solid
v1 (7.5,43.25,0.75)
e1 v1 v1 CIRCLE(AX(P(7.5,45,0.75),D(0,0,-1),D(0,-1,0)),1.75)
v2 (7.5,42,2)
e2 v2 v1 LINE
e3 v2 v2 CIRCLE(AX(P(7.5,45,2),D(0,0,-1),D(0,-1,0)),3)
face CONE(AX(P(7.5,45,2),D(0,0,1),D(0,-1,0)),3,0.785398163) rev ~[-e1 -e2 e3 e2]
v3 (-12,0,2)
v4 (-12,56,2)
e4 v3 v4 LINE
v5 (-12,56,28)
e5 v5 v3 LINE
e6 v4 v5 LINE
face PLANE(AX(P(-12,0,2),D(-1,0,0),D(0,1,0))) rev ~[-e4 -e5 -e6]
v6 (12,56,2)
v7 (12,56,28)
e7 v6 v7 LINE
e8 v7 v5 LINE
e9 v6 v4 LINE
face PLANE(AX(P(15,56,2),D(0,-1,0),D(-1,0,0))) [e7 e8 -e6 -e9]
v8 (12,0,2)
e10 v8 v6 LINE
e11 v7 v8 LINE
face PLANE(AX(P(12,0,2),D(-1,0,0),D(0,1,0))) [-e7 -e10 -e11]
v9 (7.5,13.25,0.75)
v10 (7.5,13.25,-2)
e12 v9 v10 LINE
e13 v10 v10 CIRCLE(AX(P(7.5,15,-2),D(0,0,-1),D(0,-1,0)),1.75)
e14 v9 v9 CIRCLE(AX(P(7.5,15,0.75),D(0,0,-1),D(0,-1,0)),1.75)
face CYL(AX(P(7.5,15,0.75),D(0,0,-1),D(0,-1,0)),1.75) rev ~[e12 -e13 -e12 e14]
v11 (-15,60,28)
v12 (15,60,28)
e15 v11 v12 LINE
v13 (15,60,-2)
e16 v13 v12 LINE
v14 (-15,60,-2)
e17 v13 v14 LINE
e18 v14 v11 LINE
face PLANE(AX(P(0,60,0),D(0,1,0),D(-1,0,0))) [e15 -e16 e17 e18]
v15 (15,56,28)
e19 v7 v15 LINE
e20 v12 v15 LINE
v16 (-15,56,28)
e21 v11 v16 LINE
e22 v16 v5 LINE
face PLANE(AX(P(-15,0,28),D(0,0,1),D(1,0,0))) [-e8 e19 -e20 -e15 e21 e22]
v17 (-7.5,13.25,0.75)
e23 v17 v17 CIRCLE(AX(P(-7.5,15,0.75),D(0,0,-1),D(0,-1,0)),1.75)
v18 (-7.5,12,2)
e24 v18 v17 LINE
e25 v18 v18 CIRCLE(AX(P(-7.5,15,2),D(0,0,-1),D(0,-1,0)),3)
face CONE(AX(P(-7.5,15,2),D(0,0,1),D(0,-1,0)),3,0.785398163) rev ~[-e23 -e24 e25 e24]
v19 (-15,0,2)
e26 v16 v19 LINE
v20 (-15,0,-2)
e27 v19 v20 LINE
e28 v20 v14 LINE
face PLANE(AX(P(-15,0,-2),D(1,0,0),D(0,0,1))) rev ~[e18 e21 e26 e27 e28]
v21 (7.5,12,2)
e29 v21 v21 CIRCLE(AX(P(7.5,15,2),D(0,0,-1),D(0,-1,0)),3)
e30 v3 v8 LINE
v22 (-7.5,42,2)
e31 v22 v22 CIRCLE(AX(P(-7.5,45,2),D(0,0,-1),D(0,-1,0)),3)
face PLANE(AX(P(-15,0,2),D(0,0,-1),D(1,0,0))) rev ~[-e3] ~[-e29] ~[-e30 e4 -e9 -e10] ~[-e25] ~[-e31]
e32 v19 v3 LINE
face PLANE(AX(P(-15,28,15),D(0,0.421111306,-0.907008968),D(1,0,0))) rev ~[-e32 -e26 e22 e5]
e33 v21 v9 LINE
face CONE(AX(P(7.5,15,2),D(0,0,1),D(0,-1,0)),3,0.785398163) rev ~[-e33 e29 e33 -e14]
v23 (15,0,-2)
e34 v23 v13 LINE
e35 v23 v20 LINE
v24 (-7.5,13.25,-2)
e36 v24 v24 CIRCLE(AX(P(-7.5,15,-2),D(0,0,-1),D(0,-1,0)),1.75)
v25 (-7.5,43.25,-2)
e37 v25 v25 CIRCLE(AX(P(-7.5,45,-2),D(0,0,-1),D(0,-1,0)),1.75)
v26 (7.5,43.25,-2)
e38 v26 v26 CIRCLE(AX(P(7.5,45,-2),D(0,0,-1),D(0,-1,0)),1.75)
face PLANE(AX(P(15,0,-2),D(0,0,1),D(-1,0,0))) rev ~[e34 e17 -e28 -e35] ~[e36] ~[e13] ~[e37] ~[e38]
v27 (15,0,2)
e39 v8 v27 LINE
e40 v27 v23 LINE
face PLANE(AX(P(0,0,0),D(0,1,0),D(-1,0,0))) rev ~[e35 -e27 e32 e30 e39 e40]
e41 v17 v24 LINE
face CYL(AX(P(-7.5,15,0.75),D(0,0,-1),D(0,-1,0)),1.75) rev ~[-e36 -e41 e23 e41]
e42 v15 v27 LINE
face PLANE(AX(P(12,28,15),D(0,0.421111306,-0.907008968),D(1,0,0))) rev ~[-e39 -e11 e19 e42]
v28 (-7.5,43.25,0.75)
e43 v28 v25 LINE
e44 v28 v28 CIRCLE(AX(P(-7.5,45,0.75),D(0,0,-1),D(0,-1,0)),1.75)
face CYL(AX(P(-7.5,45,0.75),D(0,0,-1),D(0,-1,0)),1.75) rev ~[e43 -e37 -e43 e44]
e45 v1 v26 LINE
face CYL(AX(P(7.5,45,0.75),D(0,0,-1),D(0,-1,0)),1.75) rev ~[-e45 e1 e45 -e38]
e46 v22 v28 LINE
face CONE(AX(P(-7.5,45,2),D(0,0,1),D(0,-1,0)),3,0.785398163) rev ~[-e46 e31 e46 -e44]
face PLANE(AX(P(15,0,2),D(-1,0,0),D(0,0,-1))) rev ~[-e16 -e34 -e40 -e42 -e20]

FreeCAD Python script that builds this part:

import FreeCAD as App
import Part
import Sketcher

V = App.Vector
Q = App.Units.Quantity


def edges_at(feature, points):
    """Names of the edges that pass closest to the given points."""
    edges = feature.Shape.Edges
    near = lambda p: min(range(len(edges)), key=lambda i: edges[i].distToShape(Part.Vertex(*p))[0])
    return sorted({f"Edge{near(p) + 1}" for p in points})


def add_polygon(sketch, points):
    """Adds a closed chain of lines whose ends are joined by coincident constraints."""
    first, n = sketch.GeometryCount, len(points)
    for a, b in zip(points, points[1:] + points[:1]):
        sketch.addGeometry(Part.LineSegment(App.Vector(*a, 0), App.Vector(*b, 0)), False)
    for i in range(n):
        sketch.addConstraint(Sketcher.Constraint("Coincident", first + i, 2, first + (i + 1) % n, 1))

doc = App.newDocument("Part")
body = doc.addObject("PartDesign::Body", "Body")

sketch1 = body.newObject("Sketcher::SketchObject", "Sketch")
sketch1.AttachmentSupport = (doc.getObject("XZ_Plane"), [""])
sketch1.MapMode = "FlatFace"
add_polygon(sketch1, [(15, 2), (15, -2), (-15, -2), (-15, 2)])
sketch1.addConstraint(Sketcher.Constraint("Vertical", 0))
sketch1.addConstraint(Sketcher.Constraint("Horizontal", 1))
sketch1.addConstraint(Sketcher.Constraint("Vertical", 2))
sketch1.addConstraint(Sketcher.Constraint("Horizontal", 3))
sketch1.addConstraint(Sketcher.Constraint("Symmetric", 0, 2, 2, 2, -1, 1))
sketch1.addConstraint(Sketcher.Constraint("DistanceX", 1, 2, 1, 1, Q("30 mm")))
sketch1.addConstraint(Sketcher.Constraint("DistanceY", 0, 2, 0, 1, Q("4 mm")))
pad1 = body.newObject("PartDesign::Pad", "Pad")
pad1.Profile = sketch1
pad1.Length = 60
pad1.Reversed = True

sketch2 = body.newObject("Sketcher::SketchObject", "Sketch001")
sketch2.AttachmentSupport = (doc.getObject("XY_Plane"), [""])
sketch2.MapMode = "FlatFace"
sketch2.AttachmentOffset = App.Placement(V(0, 0, 2), App.Rotation())
add_polygon(sketch2, [(15, 60), (-15, 60), (-15, 56), (15, 56)])
sketch2.addConstraint(Sketcher.Constraint("Horizontal", 0))
sketch2.addConstraint(Sketcher.Constraint("Vertical", 1))
sketch2.addConstraint(Sketcher.Constraint("Horizontal", 2))
sketch2.addConstraint(Sketcher.Constraint("Vertical", 3))
sketch2.addConstraint(Sketcher.Constraint("DistanceY", 1, 2, 1, 1, Q("4 mm")))
sketch2.addConstraint(Sketcher.Constraint("DistanceX", 0, 2, 0, 1, Q("30 mm")))
sketch2.addConstraint(Sketcher.Constraint("DistanceX", 0, 2, -1, 1, Q("15 mm")))
sketch2.addConstraint(Sketcher.Constraint("DistanceY", -1, 1, 0, 2, Q("60 mm")))
pad2 = body.newObject("PartDesign::Pad", "Pad001")
pad2.Profile = sketch2
pad2.Length = 26

sketch3 = body.newObject("Sketcher::SketchObject", "Sketch002")
sketch3.AttachmentSupport = (doc.getObject("XY_Plane"), [""])
sketch3.MapMode = "FlatFace"
sketch3.AttachmentOffset = App.Placement(V(0, 0, 2), App.Rotation())
add_polygon(sketch3, [(-15, 56), (-15, 0), (-12, 0), (-12, 56)])
add_polygon(sketch3, [(12, 56), (12, 0), (15, 0), (15, 56)])
sketch3.addConstraint(Sketcher.Constraint("Vertical", 0))
sketch3.addConstraint(Sketcher.Constraint("Horizontal", 1))
sketch3.addConstraint(Sketcher.Constraint("Vertical", 2))
sketch3.addConstraint(Sketcher.Constraint("Horizontal", 3))
sketch3.addConstraint(Sketcher.Constraint("Vertical", 4))
sketch3.addConstraint(Sketcher.Constraint("Horizontal", 5))
sketch3.addConstraint(Sketcher.Constraint("Vertical", 6))
sketch3.addConstraint(Sketcher.Constraint("Horizontal", 7))
sketch3.addConstraint(Sketcher.Constraint("Symmetric", 1, 2, 4, 2, -1, 1))
sketch3.addConstraint(Sketcher.Constraint("Symmetric", 0, 2, 5, 2, -2))
sketch3.addConstraint(Sketcher.Constraint("Horizontal", 3, 2, 6, 2))
sketch3.addConstraint(Sketcher.Constraint("DistanceX", 1, 1, 1, 2, Q("3 mm")))
sketch3.addConstraint(Sketcher.Constraint("DistanceY", 0, 2, 0, 1, Q("56 mm")))
sketch3.addConstraint(Sketcher.Constraint("DistanceX", 0, 2, -1, 1, Q("15 mm")))
pad3 = body.newObject("PartDesign::Pad", "Pad002")
pad3.Profile = sketch3
pad3.Length = 26
doc.recompute()

chamfer = body.newObject("PartDesign::Chamfer", "Chamfer")
chamfer.Base = (pad3, edges_at(pad3, [(-13.5, 0, 28), (13.5, 0, 28)]))
chamfer.ChamferType = "Two distances"
chamfer.Size = 56
chamfer.Size2 = 26
chamfer.FlipDirection = True

sketch4 = body.newObject("Sketcher::SketchObject", "Sketch003")
sketch4.AttachmentSupport = (doc.getObject("XY_Plane"), [""])
sketch4.MapMode = "FlatFace"
sketch4.AttachmentOffset = App.Placement(V(0, 0, 2), App.Rotation())
sketch4.addGeometry(Part.Circle(V(-7.5, 15, 0), V(0, 0, 1), 1.75), False)
sketch4.addGeometry(Part.Circle(V(7.5, 15, 0), V(0, 0, 1), 1.75), False)
sketch4.addGeometry(Part.Circle(V(7.5, 45, 0), V(0, 0, 1), 1.75), False)
sketch4.addGeometry(Part.Circle(V(-7.5, 45, 0), V(0, 0, 1), 1.75), False)
sketch4.addConstraint(Sketcher.Constraint("Equal", 0, 1))
sketch4.addConstraint(Sketcher.Constraint("Equal", 1, 2))
sketch4.addConstraint(Sketcher.Constraint("Equal", 2, 3))
sketch4.addConstraint(Sketcher.Constraint("Symmetric", 0, 3, 1, 3, -2))
sketch4.addConstraint(Sketcher.Constraint("Symmetric", 2, 3, 3, 3, -2))
sketch4.addConstraint(Sketcher.Constraint("Vertical", 1, 3, 2, 3))
sketch4.addConstraint(Sketcher.Constraint("Diameter", 0, Q("3.5 mm")))
sketch4.addConstraint(Sketcher.Constraint("DistanceY", -1, 1, 0, 3, Q("15 mm")))
sketch4.addConstraint(Sketcher.Constraint("DistanceY", -1, 1, 2, 3, Q("45 mm")))
sketch4.addConstraint(Sketcher.Constraint("DistanceX", 0, 3, 1, 3, Q("15 mm")))
doc.recompute()
hole = body.newObject("PartDesign::Hole", "Hole")
hole.Profile = sketch4
hole.ThreadType = "None"
hole.Diameter = 3.5
hole.DepthType = "ThroughAll"
hole.HoleCutType = "Countersink"
hole.HoleCutDiameter = 6
hole.HoleCutCountersinkAngle = 90

doc.recompute()
